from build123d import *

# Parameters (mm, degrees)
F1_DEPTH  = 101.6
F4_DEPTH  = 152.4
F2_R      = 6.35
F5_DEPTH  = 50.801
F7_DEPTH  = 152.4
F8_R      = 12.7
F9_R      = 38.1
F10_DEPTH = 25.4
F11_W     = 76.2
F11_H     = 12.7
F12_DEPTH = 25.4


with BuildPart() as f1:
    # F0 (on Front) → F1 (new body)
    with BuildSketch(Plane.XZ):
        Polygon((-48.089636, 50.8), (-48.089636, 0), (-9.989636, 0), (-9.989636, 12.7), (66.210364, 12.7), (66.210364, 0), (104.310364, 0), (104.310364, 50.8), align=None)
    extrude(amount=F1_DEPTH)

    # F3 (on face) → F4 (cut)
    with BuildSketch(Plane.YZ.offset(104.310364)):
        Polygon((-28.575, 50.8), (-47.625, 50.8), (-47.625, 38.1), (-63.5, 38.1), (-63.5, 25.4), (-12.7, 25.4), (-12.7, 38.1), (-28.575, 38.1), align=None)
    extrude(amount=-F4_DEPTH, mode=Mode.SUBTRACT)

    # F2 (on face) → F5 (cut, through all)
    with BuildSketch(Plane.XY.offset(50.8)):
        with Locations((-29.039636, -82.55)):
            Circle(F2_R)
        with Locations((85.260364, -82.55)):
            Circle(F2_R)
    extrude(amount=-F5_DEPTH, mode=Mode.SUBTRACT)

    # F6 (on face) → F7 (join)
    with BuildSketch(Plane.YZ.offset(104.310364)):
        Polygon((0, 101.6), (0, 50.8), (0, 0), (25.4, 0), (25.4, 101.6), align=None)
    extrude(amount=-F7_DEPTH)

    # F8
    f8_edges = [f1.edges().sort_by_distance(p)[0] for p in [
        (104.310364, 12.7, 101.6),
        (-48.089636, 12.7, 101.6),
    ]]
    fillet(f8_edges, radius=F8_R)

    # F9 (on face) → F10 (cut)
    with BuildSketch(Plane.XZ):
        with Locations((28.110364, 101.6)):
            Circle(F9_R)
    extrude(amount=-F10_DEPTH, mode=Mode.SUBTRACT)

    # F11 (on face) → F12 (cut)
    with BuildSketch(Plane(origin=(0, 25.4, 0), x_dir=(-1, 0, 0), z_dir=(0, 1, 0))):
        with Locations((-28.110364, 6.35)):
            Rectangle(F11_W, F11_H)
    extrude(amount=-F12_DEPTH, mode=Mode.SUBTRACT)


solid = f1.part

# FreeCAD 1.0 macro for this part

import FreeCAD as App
import Part
import Sketcher
from FreeCAD import Vector
Q = App.Units.Quantity


def edges_at(feature, points):
    """Names of the edges that pass closest to the given points."""
    edges = feature.Shape.Edges
    near = lambda p: min(range(len(edges)), key=lambda i: edges[i].distToShape(Part.Vertex(*p))[0])
    return sorted({f"Edge{near(p) + 1}" for p in points})


def add_polygon(sketch, points):
    """Adds a closed chain of lines whose ends are joined by coincident constraints."""
    first, n = sketch.GeometryCount, len(points)
    for a, b in zip(points, points[1:] + points[:1]):
        sketch.addGeometry(Part.LineSegment(App.Vector(*a, 0), App.Vector(*b, 0)), False)
    for i in range(n):
        sketch.addConstraint(Sketcher.Constraint("Coincident", first + i, 2, first + (i + 1) % n, 1))

doc = App.newDocument("Part")
body = doc.addObject("PartDesign::Body", "Body")

sketch1 = doc.addObject("Sketcher::SketchObject", "Sketch")
body.addObject(sketch1)
sketch1.AttachmentSupport = (doc.XZ_Plane, [""])
sketch1.MapMode = "FlatFace"
add_polygon(sketch1, [(-48.089636, 50.8), (-48.089636, 0), (-9.989636, 0), (-9.989636, 12.7), (66.210364, 12.7), (66.210364, 0), (104.310364, 0), (104.310364, 50.8)])
sketch1.addConstraint([
    Sketcher.Constraint("Vertical", 0),
    Sketcher.Constraint("Horizontal", 1),
    Sketcher.Constraint("Vertical", 2),
    Sketcher.Constraint("Horizontal", 3),
    Sketcher.Constraint("Vertical", 4),
    Sketcher.Constraint("Horizontal", 5),
    Sketcher.Constraint("Vertical", 6),
    Sketcher.Constraint("Horizontal", 7),
    Sketcher.Constraint("PointOnObject", 0, 2, -1),
    Sketcher.Constraint("PointOnObject", 4, 2, -1),
    Sketcher.Constraint("Equal", 1, 5),
    Sketcher.Constraint("DistanceX", 3, 1, 3, 2, Q("3 in")),
    Sketcher.Constraint("DistanceX", 7, 2, 7, 1, Q("6 in")),
    Sketcher.Constraint("DistanceY", 0, 2, 0, 1, Q("2 in")),
    Sketcher.Constraint("DistanceY", 2, 1, 2, 2, Q("0.5 in")),
    Sketcher.Constraint("DistanceX", 0, 2, -1, 1, 48.089636),
])
pad1 = doc.addObject("PartDesign::Pad", "Pad")
body.addObject(pad1)
pad1.Profile = sketch1
pad1.Length = Q("4 in")

sketch2 = doc.addObject("Sketcher::SketchObject", "Sketch001")
body.addObject(sketch2)
sketch2.AttachmentSupport = (doc.YZ_Plane, [""])
sketch2.MapMode = "FlatFace"
sketch2.AttachmentOffset = App.Placement(Vector(0, 0, 104.310364), App.Rotation())
add_polygon(sketch2, [(-28.575, 50.8), (-47.625, 50.8), (-47.625, 38.1), (-63.5, 38.1), (-63.5, 25.4), (-12.7, 25.4), (-12.7, 38.1), (-28.575, 38.1)])
sketch2.addConstraint([
    Sketcher.Constraint("Horizontal", 0),
    Sketcher.Constraint("Vertical", 1),
    Sketcher.Constraint("Horizontal", 2),
    Sketcher.Constraint("Vertical", 3),
    Sketcher.Constraint("Horizontal", 4),
    Sketcher.Constraint("Vertical", 5),
    Sketcher.Constraint("Horizontal", 6),
    Sketcher.Constraint("Vertical", 7),
    Sketcher.Constraint("Horizontal", 2, 2, 5, 2),
    Sketcher.Constraint("Equal", 2, 6),
    Sketcher.Constraint("Equal", 1, 3),
    Sketcher.Constraint("DistanceX", 4, 1, 4, 2, Q("2 in")),
    Sketcher.Constraint("DistanceY", 1, 2, 1, 1, Q("0.5 in")),
    Sketcher.Constraint("DistanceY", -1, 1, 0, 2, Q("2 in")),
    Sketcher.Constraint("DistanceX", 0, 2, 0, 1, Q("0.75 in")),
    Sketcher.Constraint("DistanceX", 2, 2, -1, 1, Q("2.5 in")),
])
pocket1 = doc.addObject("PartDesign::Pocket", "Pocket")
body.addObject(pocket1)
pocket1.Profile = sketch2
pocket1.Length = Q("6 in")

sketch3 = doc.addObject("Sketcher::SketchObject", "Sketch002")
body.addObject(sketch3)
sketch3.AttachmentSupport = (doc.XY_Plane, [""])
sketch3.MapMode = "FlatFace"
sketch3.AttachmentOffset = App.Placement(Vector(0, 0, 2 * 25.4), App.Rotation())
sketch3.addGeometry([
    Part.Circle(Vector(-29.039636, -82.55, 0), Vector(0, 0, 1), 6.35),
    Part.Circle(Vector(85.260364, -82.55, 0), Vector(0, 0, 1), 6.35),
], False)
sketch3.addConstraint([
    Sketcher.Constraint("Equal", 0, 1),
    Sketcher.Constraint("Horizontal", 0, 3, 1, 3),
    Sketcher.Constraint("Diameter", 0, Q("0.5 in")),
    Sketcher.Constraint("DistanceX", 0, 3, 1, 3, Q("4.5 in")),
    Sketcher.Constraint("DistanceY", 0, 3, -1, 1, Q("3.25 in")),
    Sketcher.Constraint("DistanceX", 0, 3, -1, 1, 29.039636),
])
pocket2 = doc.addObject("PartDesign::Pocket", "Pocket001")
body.addObject(pocket2)
pocket2.Profile = sketch3
pocket2.Type = "ThroughAll"

sketch4 = doc.addObject("Sketcher::SketchObject", "Sketch003")
body.addObject(sketch4)
sketch4.AttachmentSupport = (doc.YZ_Plane, [""])
sketch4.MapMode = "FlatFace"
sketch4.AttachmentOffset = App.Placement(Vector(0, 0, 104.310364), App.Rotation())
add_polygon(sketch4, [(0, 101.6), (0, 0), (25.4, 0), (25.4, 101.6)])
sketch4.addConstraint([
    Sketcher.Constraint("Vertical", 0),
    Sketcher.Constraint("Horizontal", 1),
    Sketcher.Constraint("Vertical", 2),
    Sketcher.Constraint("Horizontal", 3),
    Sketcher.Constraint("Coincident", 0, 2, -1, 1),
    Sketcher.Constraint("DistanceX", 1, 1, 1, 2, Q("1 in")),
    Sketcher.Constraint("DistanceY", 0, 2, 0, 1, Q("4 in")),
])
pad2 = doc.addObject("PartDesign::Pad", "Pad001")
body.addObject(pad2)
pad2.Profile = sketch4
pad2.Length = Q("6 in")
pad2.Reversed = True
doc.recompute()

fillet = doc.addObject("PartDesign::Fillet", "Fillet")
body.addObject(fillet)
fillet.Base = (pad2, edges_at(pad2, [(104.31, 12.7, 101.6), (-48.09, 12.7, 101.6)]))
fillet.Radius = Q("0.5 in")

sketch5 = doc.addObject("Sketcher::SketchObject", "Sketch004")
body.addObject(sketch5)
sketch5.AttachmentSupport = (doc.XZ_Plane, [""])
sketch5.MapMode = "FlatFace"
sketch5.addGeometry(Part.Circle(Vector(28.110364, 101.6, 0), Vector(0, 0, 1), 38.1), False)
sketch5.addConstraint([
    Sketcher.Constraint("Diameter", 0, Q("3 in")),
    Sketcher.Constraint("DistanceY", -1, 1, 0, 3, Q("4 in")),
    Sketcher.Constraint("DistanceX", -1, 1, 0, 3, 28.110364),
])
pocket3 = doc.addObject("PartDesign::Pocket", "Pocket002")
body.addObject(pocket3)
pocket3.Profile = sketch5
pocket3.Length = Q("1 in")

sketch6 = doc.addObject("Sketcher::SketchObject", "Sketch005")
body.addObject(sketch6)
sketch6.AttachmentSupport = (doc.XZ_Plane, [""])
sketch6.MapMode = "FlatFace"
sketch6.AttachmentOffset = App.Placement(Vector(0, 0, -1 * 25.4), App.Rotation())
add_polygon(sketch6, [(66.210364, 12.7), (66.210364, 0), (-9.989636, 0), (-9.989636, 12.7)])
sketch6.addConstraint([
    Sketcher.Constraint("Vertical", 0),
    Sketcher.Constraint("Horizontal", 1),
    Sketcher.Constraint("Vertical", 2),
    Sketcher.Constraint("Horizontal", 3),
    Sketcher.Constraint("PointOnObject", 0, 2, -1),
    Sketcher.Constraint("DistanceX", 1, 2, 1, 1, Q("3 in")),
    Sketcher.Constraint("DistanceY", 0, 2, 0, 1, Q("0.5 in")),
    Sketcher.Constraint("DistanceX", -1, 1, 0, 2, 66.210364),
])
pocket4 = doc.addObject("PartDesign::Pocket", "Pocket003")
body.addObject(pocket4)
pocket4.Profile = sketch6
pocket4.Length = Q("1 in")
pocket4.Reversed = True

doc.recompute()
